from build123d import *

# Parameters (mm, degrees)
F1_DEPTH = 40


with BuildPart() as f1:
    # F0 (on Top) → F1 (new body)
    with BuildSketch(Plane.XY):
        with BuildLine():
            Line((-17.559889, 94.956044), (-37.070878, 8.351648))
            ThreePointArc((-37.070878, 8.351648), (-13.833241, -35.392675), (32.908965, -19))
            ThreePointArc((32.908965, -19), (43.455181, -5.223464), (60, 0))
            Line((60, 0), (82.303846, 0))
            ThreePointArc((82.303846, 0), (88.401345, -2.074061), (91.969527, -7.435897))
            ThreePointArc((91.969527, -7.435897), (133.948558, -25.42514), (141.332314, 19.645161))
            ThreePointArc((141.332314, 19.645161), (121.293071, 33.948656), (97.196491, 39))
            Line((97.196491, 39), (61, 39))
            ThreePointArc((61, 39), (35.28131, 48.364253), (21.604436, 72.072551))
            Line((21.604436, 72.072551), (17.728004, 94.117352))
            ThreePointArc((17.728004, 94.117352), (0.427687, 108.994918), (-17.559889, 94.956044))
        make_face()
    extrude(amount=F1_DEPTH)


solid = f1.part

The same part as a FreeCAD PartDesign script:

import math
import FreeCAD as App
import Part
import Sketcher

V = App.Vector

doc = App.newDocument("Part")
body = doc.addObject("PartDesign::Body", "Body")

sketch1 = body.newObject("Sketcher::SketchObject", "Sketch")
sketch1.AttachmentSupport = (doc.getObject("XY_Plane"), [""])
sketch1.MapMode = "FlatFace"
sketch1.addGeometry([
    Part.LineSegment(V(-18, 95, 0), V(-37, 8, 0)),
    Part.ArcOfCircle(Part.Circle(V(0, 0, 0), V(0, 0, 1), 38), math.radians(167), math.radians(330)),
    Part.ArcOfCircle(Part.Circle(V(60, -29, 0), V(0, 0, 1), 29), math.radians(90), math.radians(160)),
    Part.LineSegment(V(60, 0, 0), V(82, 0, 0)),
    Part.ArcOfCircle(Part.Circle(V(82, -10, 0), V(0, 0, 1), 10), math.radians(15), math.radians(90)),
    Part.ArcOfCircle(Part.Circle(V(120, 0, 0), V(0, 0, 1), 29), math.radians(-165), math.radians(43)),
    Part.ArcOfCircle(Part.Circle(V(97, -21, 0), V(0, 0, 1), 60), math.radians(43), math.radians(90)),
    Part.LineSegment(V(97, 39, 0), V(61, 39, 0)),
    Part.ArcOfCircle(Part.Circle(V(61, 79, 0), V(0, 0, 1), 40), math.radians(-170), math.radians(-90)),
    Part.LineSegment(V(22, 72, 0), V(18, 94, 0)),
    Part.ArcOfCircle(Part.Circle(V(0, 91, 0), V(0, 0, 1), 18), math.radians(10), math.radians(167)),
], False)
sketch1.addConstraint([
    Sketcher.Constraint("Tangent", 0, 2, 1, 1),
    Sketcher.Constraint("Coincident", 1, 2, 2, 2),
    Sketcher.Constraint("Tangent", 2, 1, 3, 1),
    Sketcher.Constraint("Tangent", 3, 2, 4, 2),
    Sketcher.Constraint("Tangent", 4, 1, 5, 1),
    Sketcher.Constraint("Tangent", 5, 2, 6, 1),
    Sketcher.Constraint("Tangent", 6, 2, 7, 1),
    Sketcher.Constraint("Tangent", 7, 2, 8, 2),
    Sketcher.Constraint("Tangent", 8, 1, 9, 1),
    Sketcher.Constraint("Tangent", 9, 2, 10, 1),
    Sketcher.Constraint("Tangent", 10, 2, 0, 1),
    Sketcher.Constraint("Horizontal", 3),
    Sketcher.Constraint("Horizontal", 7),
    Sketcher.Constraint("Coincident", 1, 3, -1, 1),
    Sketcher.Constraint("PointOnObject", 5, 3, -1),
    Sketcher.Constraint("PointOnObject", 10, 3, -2),
    Sketcher.Constraint("PointOnObject", 2, 1, -1),
    Sketcher.Constraint("Radius", 1, 38.0),
    Sketcher.Constraint("Radius", 4, 10.000001),
    Sketcher.Constraint("Radius", 5, 29.0),
    Sketcher.Constraint("Radius", 8, 40.0),
    Sketcher.Constraint("Radius", 10, 18.0),
    Sketcher.Constraint("DistanceX", -1, 1, 2, 3, 60.000001),
    Sketcher.Constraint("DistanceX", -1, 1, 5, 3, 120.0),
    Sketcher.Constraint("DistanceX", -1, 1, 8, 3, 61.0),
    Sketcher.Constraint("DistanceY", -1, 1, 8, 3, 79.0),
    Sketcher.Constraint("DistanceY", -1, 1, 10, 3, 91.0),
    Sketcher.Constraint("DistanceY", 1, 2, -1, 1, 19.0),
    Sketcher.Constraint("DistanceY", 6, 3, 4, 3, 11.000001),
])
pad1 = body.newObject("PartDesign::Pad", "Pad")
pad1.Profile = sketch1
pad1.Length = 40

doc.recompute()
